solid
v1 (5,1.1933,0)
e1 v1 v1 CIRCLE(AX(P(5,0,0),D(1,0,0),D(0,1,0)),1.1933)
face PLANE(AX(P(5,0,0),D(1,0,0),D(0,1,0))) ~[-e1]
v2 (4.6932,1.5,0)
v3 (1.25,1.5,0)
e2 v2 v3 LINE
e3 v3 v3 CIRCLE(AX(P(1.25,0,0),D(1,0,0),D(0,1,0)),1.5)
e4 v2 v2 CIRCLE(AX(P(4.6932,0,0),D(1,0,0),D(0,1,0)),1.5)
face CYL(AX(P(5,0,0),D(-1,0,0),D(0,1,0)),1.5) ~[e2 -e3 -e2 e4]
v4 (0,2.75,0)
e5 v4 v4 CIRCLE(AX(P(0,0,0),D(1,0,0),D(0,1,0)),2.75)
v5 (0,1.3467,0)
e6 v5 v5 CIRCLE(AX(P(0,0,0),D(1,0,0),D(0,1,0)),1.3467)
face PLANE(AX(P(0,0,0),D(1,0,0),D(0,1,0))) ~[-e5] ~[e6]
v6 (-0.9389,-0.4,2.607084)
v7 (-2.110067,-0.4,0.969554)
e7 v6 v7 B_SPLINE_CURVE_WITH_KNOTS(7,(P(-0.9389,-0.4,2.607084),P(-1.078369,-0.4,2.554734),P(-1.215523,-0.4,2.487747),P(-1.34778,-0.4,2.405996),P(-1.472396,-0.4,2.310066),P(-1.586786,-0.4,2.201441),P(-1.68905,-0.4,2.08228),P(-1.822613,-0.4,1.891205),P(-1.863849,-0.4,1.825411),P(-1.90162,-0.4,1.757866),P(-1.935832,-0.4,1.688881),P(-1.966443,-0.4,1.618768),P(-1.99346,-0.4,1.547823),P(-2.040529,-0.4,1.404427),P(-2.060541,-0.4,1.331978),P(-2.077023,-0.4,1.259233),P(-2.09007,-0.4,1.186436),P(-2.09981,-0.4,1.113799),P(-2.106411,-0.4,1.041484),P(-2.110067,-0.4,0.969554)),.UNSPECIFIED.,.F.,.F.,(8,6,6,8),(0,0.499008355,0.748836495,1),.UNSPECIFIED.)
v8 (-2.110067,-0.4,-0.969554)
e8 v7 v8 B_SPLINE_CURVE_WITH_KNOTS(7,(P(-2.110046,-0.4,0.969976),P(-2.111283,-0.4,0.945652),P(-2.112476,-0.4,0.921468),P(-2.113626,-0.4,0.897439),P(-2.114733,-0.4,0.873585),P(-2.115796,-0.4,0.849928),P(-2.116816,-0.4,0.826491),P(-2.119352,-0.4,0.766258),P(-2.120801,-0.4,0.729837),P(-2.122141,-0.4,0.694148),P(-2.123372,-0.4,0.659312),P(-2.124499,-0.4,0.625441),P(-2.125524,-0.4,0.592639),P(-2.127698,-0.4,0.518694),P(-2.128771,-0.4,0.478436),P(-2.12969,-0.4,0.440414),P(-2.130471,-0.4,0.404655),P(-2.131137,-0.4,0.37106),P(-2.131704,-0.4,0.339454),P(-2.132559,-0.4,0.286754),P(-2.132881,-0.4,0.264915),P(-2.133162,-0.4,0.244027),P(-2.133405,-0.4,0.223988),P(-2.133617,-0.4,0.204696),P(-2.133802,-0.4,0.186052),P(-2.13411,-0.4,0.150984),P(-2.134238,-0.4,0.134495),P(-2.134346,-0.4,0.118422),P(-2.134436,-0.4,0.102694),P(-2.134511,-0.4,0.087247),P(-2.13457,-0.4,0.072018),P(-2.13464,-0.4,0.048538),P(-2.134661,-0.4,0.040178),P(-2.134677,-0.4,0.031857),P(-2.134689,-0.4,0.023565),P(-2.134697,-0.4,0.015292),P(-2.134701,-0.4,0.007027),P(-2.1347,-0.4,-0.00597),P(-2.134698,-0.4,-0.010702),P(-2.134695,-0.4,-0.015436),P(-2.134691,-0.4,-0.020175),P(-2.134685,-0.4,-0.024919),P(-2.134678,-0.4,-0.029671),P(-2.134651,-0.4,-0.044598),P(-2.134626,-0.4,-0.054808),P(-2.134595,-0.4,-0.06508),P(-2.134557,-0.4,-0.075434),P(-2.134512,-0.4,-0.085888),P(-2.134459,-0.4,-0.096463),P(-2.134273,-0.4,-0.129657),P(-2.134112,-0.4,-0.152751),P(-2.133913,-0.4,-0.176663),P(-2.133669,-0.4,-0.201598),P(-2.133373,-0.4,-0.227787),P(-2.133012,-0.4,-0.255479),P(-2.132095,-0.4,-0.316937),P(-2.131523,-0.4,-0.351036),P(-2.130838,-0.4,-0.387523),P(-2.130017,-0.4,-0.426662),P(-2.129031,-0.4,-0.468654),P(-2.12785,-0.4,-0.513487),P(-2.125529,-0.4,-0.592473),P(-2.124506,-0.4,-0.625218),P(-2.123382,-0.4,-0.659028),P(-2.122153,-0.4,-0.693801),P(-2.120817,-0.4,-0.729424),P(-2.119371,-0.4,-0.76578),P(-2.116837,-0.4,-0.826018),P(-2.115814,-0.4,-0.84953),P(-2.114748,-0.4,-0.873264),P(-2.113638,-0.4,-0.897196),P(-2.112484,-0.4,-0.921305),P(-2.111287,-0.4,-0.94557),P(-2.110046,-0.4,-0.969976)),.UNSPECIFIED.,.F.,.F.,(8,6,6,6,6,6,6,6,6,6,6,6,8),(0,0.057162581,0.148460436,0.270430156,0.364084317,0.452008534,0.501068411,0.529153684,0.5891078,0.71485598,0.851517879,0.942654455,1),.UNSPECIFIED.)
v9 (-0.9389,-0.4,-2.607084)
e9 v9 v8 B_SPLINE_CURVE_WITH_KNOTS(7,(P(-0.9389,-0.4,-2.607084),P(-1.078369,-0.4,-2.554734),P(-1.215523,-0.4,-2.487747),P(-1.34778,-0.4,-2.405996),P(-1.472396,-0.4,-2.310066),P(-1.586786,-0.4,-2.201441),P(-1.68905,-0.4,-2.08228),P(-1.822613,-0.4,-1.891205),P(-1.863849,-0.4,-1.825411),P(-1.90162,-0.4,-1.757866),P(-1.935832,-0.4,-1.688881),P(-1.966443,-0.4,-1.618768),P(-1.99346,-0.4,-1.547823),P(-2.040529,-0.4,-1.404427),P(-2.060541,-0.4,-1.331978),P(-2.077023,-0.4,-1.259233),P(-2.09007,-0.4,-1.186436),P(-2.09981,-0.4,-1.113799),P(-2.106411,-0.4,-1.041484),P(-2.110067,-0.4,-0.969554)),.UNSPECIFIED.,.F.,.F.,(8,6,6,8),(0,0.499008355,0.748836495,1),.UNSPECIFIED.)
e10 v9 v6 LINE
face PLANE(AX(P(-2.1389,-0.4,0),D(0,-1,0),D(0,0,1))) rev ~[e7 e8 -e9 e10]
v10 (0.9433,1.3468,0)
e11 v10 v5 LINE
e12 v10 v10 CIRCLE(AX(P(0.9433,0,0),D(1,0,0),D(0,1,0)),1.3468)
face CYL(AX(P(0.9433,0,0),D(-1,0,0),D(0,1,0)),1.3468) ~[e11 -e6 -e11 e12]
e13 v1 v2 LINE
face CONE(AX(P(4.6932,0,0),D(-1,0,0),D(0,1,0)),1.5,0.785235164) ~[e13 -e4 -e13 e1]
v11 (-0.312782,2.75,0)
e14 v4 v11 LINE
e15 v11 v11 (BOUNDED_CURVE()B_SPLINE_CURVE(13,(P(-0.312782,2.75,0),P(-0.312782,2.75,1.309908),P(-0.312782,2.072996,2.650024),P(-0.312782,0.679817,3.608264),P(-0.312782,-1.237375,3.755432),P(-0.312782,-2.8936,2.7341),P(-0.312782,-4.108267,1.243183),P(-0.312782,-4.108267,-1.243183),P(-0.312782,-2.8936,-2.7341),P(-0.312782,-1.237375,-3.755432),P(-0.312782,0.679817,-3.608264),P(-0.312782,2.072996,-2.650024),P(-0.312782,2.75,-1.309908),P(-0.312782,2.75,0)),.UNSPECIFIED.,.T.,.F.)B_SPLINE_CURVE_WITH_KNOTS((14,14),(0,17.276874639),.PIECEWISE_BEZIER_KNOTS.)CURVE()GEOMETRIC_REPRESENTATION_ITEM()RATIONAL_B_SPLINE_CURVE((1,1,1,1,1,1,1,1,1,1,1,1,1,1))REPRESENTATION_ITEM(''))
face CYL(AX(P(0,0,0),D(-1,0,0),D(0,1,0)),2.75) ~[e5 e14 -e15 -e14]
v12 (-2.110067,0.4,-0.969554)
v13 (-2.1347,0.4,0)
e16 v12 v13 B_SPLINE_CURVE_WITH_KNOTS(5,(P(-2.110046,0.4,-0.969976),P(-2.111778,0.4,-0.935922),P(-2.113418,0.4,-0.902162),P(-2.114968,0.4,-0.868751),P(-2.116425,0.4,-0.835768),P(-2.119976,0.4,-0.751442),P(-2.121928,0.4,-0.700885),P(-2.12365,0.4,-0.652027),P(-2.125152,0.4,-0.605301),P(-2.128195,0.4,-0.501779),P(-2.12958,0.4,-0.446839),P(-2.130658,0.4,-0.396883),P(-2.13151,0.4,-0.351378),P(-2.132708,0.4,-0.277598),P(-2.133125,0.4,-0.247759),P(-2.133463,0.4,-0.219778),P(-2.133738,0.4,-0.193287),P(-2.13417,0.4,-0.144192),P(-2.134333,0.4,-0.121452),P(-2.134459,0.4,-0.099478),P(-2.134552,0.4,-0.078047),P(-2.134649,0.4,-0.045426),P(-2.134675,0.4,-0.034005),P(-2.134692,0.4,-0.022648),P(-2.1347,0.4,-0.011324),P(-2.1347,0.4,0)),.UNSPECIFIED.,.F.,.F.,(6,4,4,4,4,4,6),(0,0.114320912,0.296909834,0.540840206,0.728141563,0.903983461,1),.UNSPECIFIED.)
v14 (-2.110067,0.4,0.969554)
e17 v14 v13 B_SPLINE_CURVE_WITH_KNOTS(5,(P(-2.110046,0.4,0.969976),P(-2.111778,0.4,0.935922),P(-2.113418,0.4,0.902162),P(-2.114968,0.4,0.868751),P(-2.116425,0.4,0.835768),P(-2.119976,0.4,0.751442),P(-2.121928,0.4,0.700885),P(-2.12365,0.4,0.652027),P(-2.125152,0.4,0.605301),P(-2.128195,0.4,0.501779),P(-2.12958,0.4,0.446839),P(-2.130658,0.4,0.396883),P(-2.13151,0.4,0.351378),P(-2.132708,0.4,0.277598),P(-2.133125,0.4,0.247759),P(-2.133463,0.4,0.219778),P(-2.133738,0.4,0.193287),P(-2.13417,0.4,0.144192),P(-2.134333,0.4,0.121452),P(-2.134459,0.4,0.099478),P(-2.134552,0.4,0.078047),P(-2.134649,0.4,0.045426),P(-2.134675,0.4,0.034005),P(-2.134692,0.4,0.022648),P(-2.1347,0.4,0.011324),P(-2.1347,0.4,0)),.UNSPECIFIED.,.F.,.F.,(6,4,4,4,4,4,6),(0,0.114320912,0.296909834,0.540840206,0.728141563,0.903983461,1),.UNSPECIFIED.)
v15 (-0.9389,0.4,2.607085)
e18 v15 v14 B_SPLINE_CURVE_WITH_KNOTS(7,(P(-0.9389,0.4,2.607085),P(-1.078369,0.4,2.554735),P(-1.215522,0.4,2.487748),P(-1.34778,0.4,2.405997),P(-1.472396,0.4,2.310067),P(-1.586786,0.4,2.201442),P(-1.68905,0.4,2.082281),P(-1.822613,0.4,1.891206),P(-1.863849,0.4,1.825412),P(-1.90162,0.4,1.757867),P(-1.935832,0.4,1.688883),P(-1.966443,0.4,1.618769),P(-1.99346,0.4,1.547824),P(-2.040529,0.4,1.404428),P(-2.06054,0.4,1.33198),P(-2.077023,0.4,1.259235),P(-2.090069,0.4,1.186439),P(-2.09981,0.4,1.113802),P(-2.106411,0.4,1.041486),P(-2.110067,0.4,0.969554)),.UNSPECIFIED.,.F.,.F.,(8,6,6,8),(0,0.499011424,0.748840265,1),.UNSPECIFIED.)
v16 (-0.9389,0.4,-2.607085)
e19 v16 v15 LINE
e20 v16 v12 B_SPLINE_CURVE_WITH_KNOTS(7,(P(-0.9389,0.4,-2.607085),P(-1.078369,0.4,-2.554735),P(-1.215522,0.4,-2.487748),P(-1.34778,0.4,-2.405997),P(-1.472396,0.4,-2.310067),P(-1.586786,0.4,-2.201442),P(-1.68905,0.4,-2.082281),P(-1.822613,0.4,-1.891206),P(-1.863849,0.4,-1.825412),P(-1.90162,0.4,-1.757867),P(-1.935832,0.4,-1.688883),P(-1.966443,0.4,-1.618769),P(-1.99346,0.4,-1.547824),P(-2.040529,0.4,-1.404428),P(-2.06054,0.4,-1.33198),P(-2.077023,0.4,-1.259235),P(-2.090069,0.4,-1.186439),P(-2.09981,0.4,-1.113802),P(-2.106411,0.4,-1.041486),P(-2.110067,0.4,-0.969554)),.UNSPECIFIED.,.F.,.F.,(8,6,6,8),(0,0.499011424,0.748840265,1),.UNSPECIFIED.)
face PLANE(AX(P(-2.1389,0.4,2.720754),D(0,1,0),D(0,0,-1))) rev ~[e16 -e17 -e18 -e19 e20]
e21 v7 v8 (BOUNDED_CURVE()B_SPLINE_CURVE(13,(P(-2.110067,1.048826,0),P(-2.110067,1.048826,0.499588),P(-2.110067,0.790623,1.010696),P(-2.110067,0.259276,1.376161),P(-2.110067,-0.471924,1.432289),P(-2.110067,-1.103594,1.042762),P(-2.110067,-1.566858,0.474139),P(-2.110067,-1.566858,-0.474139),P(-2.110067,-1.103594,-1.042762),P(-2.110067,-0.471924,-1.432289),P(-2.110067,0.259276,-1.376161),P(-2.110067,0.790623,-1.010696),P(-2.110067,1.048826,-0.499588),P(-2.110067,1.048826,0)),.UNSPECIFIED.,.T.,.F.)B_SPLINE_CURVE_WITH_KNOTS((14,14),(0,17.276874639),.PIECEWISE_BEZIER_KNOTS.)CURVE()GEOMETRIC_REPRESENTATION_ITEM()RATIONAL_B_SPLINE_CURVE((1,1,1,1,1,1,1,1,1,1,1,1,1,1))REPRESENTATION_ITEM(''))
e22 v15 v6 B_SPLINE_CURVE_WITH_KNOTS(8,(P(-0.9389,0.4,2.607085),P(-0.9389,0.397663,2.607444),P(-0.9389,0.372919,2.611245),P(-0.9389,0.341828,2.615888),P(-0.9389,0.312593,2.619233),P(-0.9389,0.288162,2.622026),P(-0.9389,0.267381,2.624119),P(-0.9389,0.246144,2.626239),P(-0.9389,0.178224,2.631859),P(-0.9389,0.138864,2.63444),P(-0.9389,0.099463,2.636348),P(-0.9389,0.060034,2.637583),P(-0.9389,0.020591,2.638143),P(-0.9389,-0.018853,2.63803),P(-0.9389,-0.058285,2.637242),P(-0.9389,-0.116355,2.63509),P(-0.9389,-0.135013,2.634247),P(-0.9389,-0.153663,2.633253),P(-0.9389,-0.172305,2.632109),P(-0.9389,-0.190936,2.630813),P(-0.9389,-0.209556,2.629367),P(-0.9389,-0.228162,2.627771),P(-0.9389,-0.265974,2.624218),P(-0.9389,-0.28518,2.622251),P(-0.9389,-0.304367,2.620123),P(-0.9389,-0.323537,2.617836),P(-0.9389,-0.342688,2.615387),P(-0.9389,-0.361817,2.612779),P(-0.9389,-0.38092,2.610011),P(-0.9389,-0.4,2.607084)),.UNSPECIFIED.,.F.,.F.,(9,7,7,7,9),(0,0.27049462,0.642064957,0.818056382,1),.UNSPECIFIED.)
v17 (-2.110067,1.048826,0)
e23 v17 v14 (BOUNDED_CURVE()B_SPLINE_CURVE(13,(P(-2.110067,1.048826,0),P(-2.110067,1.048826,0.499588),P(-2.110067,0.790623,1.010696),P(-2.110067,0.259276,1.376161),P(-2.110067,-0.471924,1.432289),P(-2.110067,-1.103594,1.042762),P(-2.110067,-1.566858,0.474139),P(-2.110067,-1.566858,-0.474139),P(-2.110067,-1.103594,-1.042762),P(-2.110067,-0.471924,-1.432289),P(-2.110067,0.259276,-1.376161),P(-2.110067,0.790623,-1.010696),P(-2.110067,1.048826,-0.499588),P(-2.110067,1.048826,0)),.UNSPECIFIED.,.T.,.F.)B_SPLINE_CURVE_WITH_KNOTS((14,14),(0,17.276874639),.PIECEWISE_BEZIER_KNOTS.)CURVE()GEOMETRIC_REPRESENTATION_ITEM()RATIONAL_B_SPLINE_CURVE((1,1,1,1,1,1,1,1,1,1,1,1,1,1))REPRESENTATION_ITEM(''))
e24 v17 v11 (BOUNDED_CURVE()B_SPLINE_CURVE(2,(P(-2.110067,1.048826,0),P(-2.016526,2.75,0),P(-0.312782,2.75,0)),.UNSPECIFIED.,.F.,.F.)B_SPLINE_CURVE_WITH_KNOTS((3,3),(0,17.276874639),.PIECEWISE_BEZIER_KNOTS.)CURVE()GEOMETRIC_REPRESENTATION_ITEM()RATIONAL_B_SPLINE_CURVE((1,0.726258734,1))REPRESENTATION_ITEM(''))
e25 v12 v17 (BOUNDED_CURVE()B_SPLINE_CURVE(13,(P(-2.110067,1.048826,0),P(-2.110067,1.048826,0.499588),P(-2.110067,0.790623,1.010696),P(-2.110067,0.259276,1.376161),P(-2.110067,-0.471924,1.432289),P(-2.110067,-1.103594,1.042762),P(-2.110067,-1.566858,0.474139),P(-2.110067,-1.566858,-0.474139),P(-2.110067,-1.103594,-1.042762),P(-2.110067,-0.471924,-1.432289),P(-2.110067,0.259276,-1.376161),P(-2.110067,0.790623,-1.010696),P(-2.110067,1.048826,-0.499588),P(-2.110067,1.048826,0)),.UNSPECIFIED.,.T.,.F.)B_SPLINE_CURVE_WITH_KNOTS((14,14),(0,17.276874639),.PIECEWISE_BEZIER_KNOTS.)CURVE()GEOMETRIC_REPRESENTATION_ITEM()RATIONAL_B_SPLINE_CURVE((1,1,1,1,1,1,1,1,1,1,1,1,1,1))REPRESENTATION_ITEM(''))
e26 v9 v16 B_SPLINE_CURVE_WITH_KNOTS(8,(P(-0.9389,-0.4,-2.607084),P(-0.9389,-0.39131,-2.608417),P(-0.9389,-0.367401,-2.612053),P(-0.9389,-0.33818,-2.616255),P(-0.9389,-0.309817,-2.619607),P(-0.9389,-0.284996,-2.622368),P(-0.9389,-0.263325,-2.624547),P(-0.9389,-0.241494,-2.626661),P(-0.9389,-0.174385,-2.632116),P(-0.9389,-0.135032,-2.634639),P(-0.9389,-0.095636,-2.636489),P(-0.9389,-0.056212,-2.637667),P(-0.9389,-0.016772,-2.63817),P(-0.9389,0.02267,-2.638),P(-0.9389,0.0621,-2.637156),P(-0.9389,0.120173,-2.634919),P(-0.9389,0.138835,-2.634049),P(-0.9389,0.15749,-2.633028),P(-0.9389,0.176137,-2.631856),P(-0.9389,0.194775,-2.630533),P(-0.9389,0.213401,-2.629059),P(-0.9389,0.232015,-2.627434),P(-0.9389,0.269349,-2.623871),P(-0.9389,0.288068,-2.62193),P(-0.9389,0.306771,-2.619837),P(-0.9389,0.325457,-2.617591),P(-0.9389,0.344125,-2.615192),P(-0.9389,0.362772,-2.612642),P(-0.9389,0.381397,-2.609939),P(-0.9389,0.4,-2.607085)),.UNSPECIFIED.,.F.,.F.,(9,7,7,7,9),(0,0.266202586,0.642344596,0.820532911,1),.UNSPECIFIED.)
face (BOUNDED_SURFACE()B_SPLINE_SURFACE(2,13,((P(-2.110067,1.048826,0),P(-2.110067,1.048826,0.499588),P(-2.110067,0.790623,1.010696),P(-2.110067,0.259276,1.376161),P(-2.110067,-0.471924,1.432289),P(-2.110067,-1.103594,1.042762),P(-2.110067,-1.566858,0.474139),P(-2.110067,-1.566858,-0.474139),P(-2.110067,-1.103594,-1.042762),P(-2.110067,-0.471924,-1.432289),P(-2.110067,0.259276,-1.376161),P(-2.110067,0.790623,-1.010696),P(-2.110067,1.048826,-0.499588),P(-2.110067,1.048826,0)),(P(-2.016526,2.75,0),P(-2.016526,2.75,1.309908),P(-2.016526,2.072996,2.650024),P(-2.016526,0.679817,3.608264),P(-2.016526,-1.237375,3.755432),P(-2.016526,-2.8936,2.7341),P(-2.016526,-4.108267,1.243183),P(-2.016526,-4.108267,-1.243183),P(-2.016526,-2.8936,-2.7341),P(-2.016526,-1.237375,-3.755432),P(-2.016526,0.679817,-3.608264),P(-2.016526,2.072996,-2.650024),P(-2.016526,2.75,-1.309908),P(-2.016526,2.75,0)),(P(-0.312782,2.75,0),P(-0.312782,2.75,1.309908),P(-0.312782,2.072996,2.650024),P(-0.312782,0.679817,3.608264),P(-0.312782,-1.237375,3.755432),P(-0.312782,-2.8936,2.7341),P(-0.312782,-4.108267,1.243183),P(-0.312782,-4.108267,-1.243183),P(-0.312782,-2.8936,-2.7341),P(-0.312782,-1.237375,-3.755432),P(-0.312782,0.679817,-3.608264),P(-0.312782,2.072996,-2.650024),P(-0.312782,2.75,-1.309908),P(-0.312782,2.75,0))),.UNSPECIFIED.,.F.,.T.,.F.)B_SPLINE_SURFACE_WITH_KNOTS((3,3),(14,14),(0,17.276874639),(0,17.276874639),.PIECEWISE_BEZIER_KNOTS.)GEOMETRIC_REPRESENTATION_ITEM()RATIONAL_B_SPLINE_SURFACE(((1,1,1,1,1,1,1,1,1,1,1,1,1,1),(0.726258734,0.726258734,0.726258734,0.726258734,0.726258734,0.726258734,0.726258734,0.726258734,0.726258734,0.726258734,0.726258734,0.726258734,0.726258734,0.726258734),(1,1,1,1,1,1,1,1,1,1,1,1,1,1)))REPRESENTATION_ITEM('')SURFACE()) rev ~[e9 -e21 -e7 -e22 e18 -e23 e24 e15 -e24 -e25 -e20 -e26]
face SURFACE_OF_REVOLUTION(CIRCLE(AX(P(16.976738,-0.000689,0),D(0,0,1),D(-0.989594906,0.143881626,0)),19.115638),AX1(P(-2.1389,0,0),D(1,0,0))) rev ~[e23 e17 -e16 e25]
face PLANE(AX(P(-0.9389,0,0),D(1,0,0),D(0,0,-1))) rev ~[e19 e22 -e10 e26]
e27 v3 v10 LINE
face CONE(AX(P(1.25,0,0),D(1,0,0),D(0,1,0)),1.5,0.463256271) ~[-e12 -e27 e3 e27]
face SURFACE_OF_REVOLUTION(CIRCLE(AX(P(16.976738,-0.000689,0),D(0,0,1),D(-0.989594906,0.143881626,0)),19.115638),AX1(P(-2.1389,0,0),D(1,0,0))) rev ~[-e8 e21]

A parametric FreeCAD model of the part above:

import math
import FreeCAD as App
import Part
import Sketcher

V = App.Vector
Q = App.Units.Quantity


def edges_at(feature, points):
    """Names of the edges that pass closest to the given points."""
    edges = feature.Shape.Edges
    near = lambda p: min(range(len(edges)), key=lambda i: edges[i].distToShape(Part.Vertex(*p))[0])
    return sorted({f"Edge{near(p) + 1}" for p in points})


def add_polygon(sketch, points):
    """Adds a closed chain of lines whose ends are joined by coincident constraints."""
    first, n = sketch.GeometryCount, len(points)
    for a, b in zip(points, points[1:] + points[:1]):
        sketch.addGeometry(Part.LineSegment(App.Vector(*a, 0), App.Vector(*b, 0)), False)
    for i in range(n):
        sketch.addConstraint(Sketcher.Constraint("Coincident", first + i, 2, first + (i + 1) % n, 1))

doc = App.newDocument("Part")
params = doc.addObject("Spreadsheet::Sheet", "Params")
for row, (alias, value) in enumerate([
    ("sketch1_width", "3.75 mm"),
    ("sketch1_height", "1.5 mm"),
    ("sketch1_length", "1.94 mm"),
    ("revolution_angle", "360 deg"),
    ("fillet_radius", "1.8 mm"),
    ("sketch2_width", "0.8 mm"),
    ("sketch2_height", "5.5 mm"),
    ("pocket1_length", "1.2 mm"),
    ("chamfer_size", "0.3067 mm"),
    ("chamfer_size2", "0.3068 mm"),
], start=1):
    params.set(f"A{row}", alias)
    params.set(f"B{row}", "=" + value)
    params.setAlias(f"B{row}", alias)

body = doc.addObject("PartDesign::Body", "Body")

sketch1 = body.newObject("Sketcher::SketchObject", "Sketch")
sketch1.AttachmentSupport = (doc.getObject("XY_Plane"), [""])
sketch1.MapMode = "FlatFace"
sketch1.addGeometry([
    Part.ArcOfCircle(Part.Circle(V(16.98, 0, 0), V(0, 0, 1), 19.12), math.radians(171.73), math.radians(180)),
    Part.LineSegment(V(-2.14, 0, 0), V(5, 0, 0)),
    Part.LineSegment(V(5, 0, 0), V(5, 1.5, 0)),
    Part.LineSegment(V(5, 1.5, 0), V(1.25, 1.5, 0)),
    Part.LineSegment(V(1.25, 1.5, 0), V(0.94, 1.35, 0)),
    Part.LineSegment(V(0.94, 1.35, 0), V(0, 1.35, 0)),
    Part.LineSegment(V(0, 1.35, 0), V(0, 2.75, 0)),
    Part.LineSegment(V(0, 2.75, 0), V(-1.94, 2.75, 0)),
], False)
sketch1.addConstraint([
    Sketcher.Constraint("Coincident", 0, 2, 1, 1),
    Sketcher.Constraint("Coincident", 1, 2, 2, 1),
    Sketcher.Constraint("Coincident", 2, 2, 3, 1),
    Sketcher.Constraint("Coincident", 3, 2, 4, 1),
    Sketcher.Constraint("Coincident", 4, 2, 5, 1),
    Sketcher.Constraint("Coincident", 5, 2, 6, 1),
    Sketcher.Constraint("Coincident", 6, 2, 7, 1),
    Sketcher.Constraint("Coincident", 7, 2, 0, 1),
    Sketcher.Constraint("Horizontal", 1),
    Sketcher.Constraint("Vertical", 2),
    Sketcher.Constraint("Horizontal", 3),
    Sketcher.Constraint("Horizontal", 5),
    Sketcher.Constraint("Vertical", 6),
    Sketcher.Constraint("PointOnObject", 0, 2, -1),
    Sketcher.Constraint("PointOnObject", 5, 2, -2),
    Sketcher.Constraint("DistanceX", -1, 1, 1, 2, 5.0),
    Sketcher.Constraint("DistanceX", 3, 2, 3, 1, 3.75),
    Sketcher.Constraint("DistanceY", 2, 1, 2, 2, 1.5),
    Sketcher.Constraint("DistanceX", 0, 2, -1, 1, 2.139),
    Sketcher.Constraint("Angle", 7, Q("-179.9911 deg")),
    Sketcher.Constraint("Radius", 0, 19.1156),
    Sketcher.Constraint("DistanceX", 4, 2, 3, 2, 0.3067),
    Sketcher.Constraint("Distance", 7, 1.94),
    Sketcher.Constraint("DistanceY", -1, 1, 6, 2, 2.75),
    Sketcher.Constraint("DistanceY", 6, 1, 6, 2, 1.4033),
])
sketch1.setExpression("Constraints[16]", "Params.sketch1_width")
sketch1.setExpression("Constraints[17]", "Params.sketch1_height")
sketch1.setExpression("Constraints[22]", "Params.sketch1_length")
revolution = body.newObject("PartDesign::Revolution", "Revolution")
revolution.Profile = sketch1
revolution.ReferenceAxis = (sketch1, ["H_Axis"])
revolution.setExpression("Angle", "Params.revolution_angle")
doc.recompute()

fillet = body.newObject("PartDesign::Fillet", "Fillet")
fillet.Base = (revolution, edges_at(revolution, [(-1.94, -2.75, 0)]))
fillet.setExpression("Radius", "Params.fillet_radius")

sketch2 = body.newObject("Sketcher::SketchObject", "Sketch001")
sketch2.AttachmentSupport = (doc.getObject("YZ_Plane"), [""])
sketch2.MapMode = "FlatFace"
sketch2.AttachmentOffset = App.Placement(V(0, 0, -2.1389), App.Rotation())
add_polygon(sketch2, [(-0.4, -2.8), (0.4, -2.8), (0.4, 2.8), (-0.4, 2.8)])
sketch2.addConstraint([
    Sketcher.Constraint("Horizontal", 0),
    Sketcher.Constraint("Vertical", 1),
    Sketcher.Constraint("Horizontal", 2),
    Sketcher.Constraint("Vertical", 3),
    Sketcher.Constraint("Symmetric", 0, 2, 2, 2, -1, 1),
    Sketcher.Constraint("DistanceX", 0, 1, 0, 2, 0.8),
    Sketcher.Constraint("DistanceY", 1, 1, 1, 2, 5.5),
])
sketch2.setExpression("Constraints[9]", "Params.sketch2_width")
sketch2.setExpression("Constraints[10]", "Params.sketch2_height")
pocket1 = body.newObject("PartDesign::Pocket", "Pocket")
pocket1.Profile = sketch2
pocket1.setExpression("Length", "Params.pocket1_length")
pocket1.Reversed = True
doc.recompute()

chamfer = body.newObject("PartDesign::Chamfer", "Chamfer")
chamfer.Base = (pocket1, edges_at(pocket1, [(5, -1.5, 0)]))
chamfer.ChamferType = "Two distances"
chamfer.setExpression("Size", "Params.chamfer_size")
chamfer.setExpression("Size2", "Params.chamfer_size2")

doc.recompute()
